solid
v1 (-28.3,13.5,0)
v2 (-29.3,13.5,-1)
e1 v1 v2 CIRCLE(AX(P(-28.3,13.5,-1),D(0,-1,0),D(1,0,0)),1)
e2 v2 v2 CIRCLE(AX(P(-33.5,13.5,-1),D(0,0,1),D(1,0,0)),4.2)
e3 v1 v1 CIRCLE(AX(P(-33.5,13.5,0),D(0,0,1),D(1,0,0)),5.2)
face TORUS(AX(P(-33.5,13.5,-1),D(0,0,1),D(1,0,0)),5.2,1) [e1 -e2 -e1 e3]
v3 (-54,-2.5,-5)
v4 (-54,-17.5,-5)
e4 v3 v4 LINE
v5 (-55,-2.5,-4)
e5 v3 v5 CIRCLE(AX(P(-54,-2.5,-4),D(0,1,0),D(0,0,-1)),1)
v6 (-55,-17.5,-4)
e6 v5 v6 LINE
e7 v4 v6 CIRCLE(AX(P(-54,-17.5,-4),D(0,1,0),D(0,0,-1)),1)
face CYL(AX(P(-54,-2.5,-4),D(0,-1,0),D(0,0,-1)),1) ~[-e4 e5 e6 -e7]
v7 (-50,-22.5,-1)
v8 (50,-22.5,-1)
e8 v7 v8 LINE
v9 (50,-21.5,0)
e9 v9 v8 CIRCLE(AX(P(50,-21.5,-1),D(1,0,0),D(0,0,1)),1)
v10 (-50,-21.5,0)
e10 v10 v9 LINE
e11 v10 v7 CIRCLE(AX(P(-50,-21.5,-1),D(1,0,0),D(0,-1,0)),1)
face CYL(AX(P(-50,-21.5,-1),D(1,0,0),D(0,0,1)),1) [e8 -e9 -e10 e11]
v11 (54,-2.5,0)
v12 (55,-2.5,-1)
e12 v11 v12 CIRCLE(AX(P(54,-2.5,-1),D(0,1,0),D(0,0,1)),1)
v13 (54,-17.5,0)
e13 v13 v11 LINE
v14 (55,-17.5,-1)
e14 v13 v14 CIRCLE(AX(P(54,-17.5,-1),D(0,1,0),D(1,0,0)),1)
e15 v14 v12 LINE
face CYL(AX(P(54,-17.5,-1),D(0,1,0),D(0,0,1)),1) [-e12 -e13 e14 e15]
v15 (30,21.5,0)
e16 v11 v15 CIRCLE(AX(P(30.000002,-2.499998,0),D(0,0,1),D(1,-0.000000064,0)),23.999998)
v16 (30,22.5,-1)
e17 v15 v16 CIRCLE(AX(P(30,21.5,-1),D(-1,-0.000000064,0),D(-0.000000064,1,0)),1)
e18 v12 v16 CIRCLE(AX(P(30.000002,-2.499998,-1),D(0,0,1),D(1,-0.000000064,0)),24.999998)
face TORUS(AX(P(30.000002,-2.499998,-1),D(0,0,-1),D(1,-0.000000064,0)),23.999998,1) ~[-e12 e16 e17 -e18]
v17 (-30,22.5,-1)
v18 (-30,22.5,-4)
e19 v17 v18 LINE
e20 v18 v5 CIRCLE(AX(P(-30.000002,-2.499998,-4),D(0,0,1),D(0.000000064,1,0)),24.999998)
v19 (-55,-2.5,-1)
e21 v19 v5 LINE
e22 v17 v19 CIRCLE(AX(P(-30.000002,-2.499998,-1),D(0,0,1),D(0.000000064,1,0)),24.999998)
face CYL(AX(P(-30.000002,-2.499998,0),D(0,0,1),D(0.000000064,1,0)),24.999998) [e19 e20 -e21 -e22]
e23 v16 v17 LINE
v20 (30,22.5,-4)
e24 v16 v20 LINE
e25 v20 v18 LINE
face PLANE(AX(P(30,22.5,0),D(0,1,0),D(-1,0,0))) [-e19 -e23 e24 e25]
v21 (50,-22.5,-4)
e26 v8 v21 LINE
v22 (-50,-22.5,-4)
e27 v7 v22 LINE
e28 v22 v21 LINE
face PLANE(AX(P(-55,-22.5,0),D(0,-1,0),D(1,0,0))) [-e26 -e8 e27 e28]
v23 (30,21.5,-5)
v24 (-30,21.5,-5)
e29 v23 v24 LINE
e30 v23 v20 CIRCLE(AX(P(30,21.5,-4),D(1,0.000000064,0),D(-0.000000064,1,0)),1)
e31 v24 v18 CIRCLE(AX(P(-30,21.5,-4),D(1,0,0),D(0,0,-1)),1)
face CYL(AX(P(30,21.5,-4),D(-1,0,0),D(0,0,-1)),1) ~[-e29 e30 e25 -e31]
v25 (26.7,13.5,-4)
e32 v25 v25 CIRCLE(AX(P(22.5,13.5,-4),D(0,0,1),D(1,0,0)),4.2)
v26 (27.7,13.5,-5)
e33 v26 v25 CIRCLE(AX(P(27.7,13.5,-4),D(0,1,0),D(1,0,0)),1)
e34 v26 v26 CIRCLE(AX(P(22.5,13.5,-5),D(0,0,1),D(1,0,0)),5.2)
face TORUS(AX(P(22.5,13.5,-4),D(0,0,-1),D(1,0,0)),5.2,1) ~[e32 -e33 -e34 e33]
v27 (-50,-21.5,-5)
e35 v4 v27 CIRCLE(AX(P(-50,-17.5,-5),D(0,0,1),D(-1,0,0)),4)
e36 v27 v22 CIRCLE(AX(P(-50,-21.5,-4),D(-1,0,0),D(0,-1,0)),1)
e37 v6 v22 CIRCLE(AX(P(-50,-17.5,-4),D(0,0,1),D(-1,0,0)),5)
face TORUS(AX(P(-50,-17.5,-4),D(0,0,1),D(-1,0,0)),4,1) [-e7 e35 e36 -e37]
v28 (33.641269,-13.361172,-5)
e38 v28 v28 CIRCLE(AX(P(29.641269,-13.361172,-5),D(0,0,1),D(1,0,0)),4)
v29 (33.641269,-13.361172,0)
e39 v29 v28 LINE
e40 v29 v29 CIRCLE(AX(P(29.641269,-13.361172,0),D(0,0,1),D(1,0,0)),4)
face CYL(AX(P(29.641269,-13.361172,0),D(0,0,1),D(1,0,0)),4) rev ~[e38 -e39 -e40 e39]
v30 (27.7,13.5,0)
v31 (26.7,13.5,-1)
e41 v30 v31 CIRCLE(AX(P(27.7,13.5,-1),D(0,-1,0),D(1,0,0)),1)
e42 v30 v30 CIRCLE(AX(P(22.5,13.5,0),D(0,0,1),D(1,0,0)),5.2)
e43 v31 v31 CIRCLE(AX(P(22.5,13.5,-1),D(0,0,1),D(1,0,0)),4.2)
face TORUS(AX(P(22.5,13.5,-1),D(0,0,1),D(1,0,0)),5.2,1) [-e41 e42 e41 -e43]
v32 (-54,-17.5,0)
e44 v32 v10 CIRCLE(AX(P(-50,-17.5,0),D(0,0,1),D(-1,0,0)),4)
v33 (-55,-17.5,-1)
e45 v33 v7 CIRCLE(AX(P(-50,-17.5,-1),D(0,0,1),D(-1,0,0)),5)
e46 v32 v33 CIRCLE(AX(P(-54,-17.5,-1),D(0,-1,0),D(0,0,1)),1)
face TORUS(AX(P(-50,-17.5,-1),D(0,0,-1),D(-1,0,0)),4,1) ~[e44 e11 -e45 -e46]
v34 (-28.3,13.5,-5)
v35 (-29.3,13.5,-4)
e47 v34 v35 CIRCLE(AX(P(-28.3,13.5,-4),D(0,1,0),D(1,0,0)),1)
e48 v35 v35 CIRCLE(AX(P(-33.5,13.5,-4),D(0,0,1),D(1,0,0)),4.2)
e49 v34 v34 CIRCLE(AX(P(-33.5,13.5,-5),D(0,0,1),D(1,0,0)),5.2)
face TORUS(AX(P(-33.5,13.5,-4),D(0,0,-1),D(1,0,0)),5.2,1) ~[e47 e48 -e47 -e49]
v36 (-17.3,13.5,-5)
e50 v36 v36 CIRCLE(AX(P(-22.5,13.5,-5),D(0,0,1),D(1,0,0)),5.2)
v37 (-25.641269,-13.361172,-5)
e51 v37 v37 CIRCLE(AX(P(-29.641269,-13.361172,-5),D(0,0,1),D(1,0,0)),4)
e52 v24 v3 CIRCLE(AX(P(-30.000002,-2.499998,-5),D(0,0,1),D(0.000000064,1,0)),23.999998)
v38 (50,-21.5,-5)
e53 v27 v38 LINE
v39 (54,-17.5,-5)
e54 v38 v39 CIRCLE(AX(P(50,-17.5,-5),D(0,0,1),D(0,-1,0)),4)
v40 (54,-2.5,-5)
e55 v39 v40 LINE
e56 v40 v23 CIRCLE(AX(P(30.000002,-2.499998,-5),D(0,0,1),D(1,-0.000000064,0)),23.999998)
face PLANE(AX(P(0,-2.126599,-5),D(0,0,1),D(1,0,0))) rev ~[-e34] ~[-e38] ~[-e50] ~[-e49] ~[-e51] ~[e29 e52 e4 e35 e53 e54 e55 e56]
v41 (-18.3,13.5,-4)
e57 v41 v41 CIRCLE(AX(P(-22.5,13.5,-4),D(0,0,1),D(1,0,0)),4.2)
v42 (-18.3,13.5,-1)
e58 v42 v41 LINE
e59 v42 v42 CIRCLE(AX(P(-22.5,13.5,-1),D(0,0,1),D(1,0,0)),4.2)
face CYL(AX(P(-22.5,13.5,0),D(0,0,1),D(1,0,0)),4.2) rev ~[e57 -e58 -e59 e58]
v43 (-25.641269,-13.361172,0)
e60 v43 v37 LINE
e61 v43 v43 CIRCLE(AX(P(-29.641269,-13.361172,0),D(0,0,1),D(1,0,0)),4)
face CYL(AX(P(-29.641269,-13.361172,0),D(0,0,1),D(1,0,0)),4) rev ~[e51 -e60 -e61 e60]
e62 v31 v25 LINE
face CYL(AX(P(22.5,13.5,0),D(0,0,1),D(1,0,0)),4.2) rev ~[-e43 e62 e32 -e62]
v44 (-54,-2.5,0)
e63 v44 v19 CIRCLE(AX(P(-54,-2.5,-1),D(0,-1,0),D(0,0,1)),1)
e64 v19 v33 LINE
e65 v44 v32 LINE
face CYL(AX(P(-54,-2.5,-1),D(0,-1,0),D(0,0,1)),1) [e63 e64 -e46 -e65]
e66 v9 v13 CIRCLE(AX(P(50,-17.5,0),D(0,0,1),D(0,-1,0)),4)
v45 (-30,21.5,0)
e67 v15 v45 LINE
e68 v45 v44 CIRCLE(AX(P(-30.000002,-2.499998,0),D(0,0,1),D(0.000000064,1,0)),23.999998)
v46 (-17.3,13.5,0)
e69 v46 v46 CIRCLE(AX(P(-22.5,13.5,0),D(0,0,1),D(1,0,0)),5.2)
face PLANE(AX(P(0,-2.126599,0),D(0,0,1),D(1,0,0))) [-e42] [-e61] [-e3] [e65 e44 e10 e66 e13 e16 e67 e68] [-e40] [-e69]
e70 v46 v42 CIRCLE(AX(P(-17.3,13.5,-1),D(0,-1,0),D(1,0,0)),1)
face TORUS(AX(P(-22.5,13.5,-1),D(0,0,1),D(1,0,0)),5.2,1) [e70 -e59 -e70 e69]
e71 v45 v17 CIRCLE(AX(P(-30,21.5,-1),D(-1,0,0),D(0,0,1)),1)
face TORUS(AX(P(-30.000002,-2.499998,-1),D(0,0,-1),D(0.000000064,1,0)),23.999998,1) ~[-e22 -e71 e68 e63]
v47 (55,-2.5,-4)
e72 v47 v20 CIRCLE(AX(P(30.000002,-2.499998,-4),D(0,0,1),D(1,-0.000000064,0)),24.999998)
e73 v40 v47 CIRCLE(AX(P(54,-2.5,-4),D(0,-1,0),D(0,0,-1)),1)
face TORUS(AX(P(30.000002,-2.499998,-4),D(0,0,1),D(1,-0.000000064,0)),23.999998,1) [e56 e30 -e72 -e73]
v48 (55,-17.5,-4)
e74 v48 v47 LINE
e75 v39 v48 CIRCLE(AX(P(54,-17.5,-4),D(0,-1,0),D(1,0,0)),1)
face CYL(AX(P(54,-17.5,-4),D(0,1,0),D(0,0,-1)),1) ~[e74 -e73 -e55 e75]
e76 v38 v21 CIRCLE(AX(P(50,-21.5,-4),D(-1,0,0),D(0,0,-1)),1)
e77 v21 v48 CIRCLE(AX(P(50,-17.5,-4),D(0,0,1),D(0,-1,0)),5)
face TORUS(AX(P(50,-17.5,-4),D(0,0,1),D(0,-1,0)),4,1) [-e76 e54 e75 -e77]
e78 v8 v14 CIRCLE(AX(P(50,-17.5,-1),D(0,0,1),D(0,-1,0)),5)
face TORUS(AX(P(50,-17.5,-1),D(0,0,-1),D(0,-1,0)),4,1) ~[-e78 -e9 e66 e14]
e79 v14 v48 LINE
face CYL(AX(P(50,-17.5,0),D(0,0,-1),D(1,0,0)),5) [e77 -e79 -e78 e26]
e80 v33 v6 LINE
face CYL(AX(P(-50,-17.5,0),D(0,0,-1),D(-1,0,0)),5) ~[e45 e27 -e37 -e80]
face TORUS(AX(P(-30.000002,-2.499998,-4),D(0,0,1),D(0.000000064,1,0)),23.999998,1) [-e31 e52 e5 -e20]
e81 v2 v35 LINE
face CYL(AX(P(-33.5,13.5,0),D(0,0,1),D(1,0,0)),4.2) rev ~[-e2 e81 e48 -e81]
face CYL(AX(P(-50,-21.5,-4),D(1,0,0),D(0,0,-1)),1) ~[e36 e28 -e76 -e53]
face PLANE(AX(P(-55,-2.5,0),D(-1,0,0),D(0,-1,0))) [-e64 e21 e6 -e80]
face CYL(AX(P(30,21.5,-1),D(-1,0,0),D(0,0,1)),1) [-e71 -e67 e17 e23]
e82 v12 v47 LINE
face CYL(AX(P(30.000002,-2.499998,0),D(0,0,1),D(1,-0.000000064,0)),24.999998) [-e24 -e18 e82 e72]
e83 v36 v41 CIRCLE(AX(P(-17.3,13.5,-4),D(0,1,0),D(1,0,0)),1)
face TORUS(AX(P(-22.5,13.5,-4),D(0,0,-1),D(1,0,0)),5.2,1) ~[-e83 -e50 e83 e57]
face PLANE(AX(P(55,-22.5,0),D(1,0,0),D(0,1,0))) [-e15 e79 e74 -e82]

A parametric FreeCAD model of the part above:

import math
import FreeCAD as App
import Part
import Sketcher


def edges_at(feature, points):
    """Names of the edges that pass closest to the given points."""
    edges = feature.Shape.Edges
    near = lambda p: min(range(len(edges)), key=lambda i: edges[i].distToShape(Part.Vertex(*p))[0])
    return sorted({f"Edge{near(p) + 1}" for p in points})

doc = App.newDocument("Part")
body = doc.addObject("PartDesign::Body", "Body")

sketch1 = body.newObject("Sketcher::SketchObject", "Sketch")
sketch1.AttachmentSupport = (doc.getObject("XY_Plane"), [""])
sketch1.MapMode = "FlatFace"
sketch1.addGeometry(Part.LineSegment(App.Vector(30, 22.5, 0), App.Vector(-30, 22.5, 0)), False)
sketch1.addGeometry(Part.ArcOfCircle(Part.Circle(App.Vector(-30, -2.5, 0), App.Vector(0, 0, 1), 25), math.radians(90), math.radians(180)), False)
sketch1.addGeometry(Part.LineSegment(App.Vector(-55, -2.5, 0), App.Vector(-55, -22.5, 0)), False)
sketch1.addGeometry(Part.LineSegment(App.Vector(-55, -22.5, 0), App.Vector(55, -22.5, 0)), False)
sketch1.addGeometry(Part.LineSegment(App.Vector(55, -22.5, 0), App.Vector(55, -2.5, 0)), False)
sketch1.addGeometry(Part.ArcOfCircle(Part.Circle(App.Vector(30, -2.5, 0), App.Vector(0, 0, 1), 25), math.radians(0), math.radians(90)), False)
sketch1.addGeometry(Part.Circle(App.Vector(-33.5, 13.5, 0), App.Vector(0, 0, 1), 4.2), False)
sketch1.addGeometry(Part.Circle(App.Vector(-22.5, 13.5, 0), App.Vector(0, 0, 1), 4.2), False)
sketch1.addGeometry(Part.Circle(App.Vector(22.5, 13.5, 0), App.Vector(0, 0, 1), 4.2), False)
sketch1.addConstraint(Sketcher.Constraint("Tangent", 0, 2, 1, 1))
sketch1.addConstraint(Sketcher.Constraint("Tangent", 1, 2, 2, 1))
sketch1.addConstraint(Sketcher.Constraint("Coincident", 2, 2, 3, 1))
sketch1.addConstraint(Sketcher.Constraint("Coincident", 3, 2, 4, 1))
sketch1.addConstraint(Sketcher.Constraint("Tangent", 4, 2, 5, 1))
sketch1.addConstraint(Sketcher.Constraint("Tangent", 5, 2, 0, 1))
sketch1.addConstraint(Sketcher.Constraint("Horizontal", 0))
sketch1.addConstraint(Sketcher.Constraint("Vertical", 2))
sketch1.addConstraint(Sketcher.Constraint("Horizontal", 3))
sketch1.addConstraint(Sketcher.Constraint("Vertical", 4))
sketch1.addConstraint(Sketcher.Constraint("Equal", 1, 5))
sketch1.addConstraint(Sketcher.Constraint("Equal", 6, 7))
sketch1.addConstraint(Sketcher.Constraint("Equal", 7, 8))
sketch1.addConstraint(Sketcher.Constraint("Symmetric", 7, 3, 8, 3, -2))
sketch1.addConstraint(Sketcher.Constraint("Horizontal", 6, 3, 7, 3))
sketch1.addConstraint(Sketcher.Constraint("Radius", 1, 24.999998))
sketch1.addConstraint(Sketcher.Constraint("Diameter", 6, 8.4))
sketch1.addConstraint(Sketcher.Constraint("DistanceX", 0, 2, 0, 1, 60.0))
sketch1.addConstraint(Sketcher.Constraint("DistanceY", 2, 2, 2, 1, 20.0))
sketch1.addConstraint(Sketcher.Constraint("DistanceX", 1, 3, -1, 1, 30.000002))
sketch1.addConstraint(Sketcher.Constraint("DistanceY", 1, 3, 6, 3, 15.999998))
sketch1.addConstraint(Sketcher.Constraint("DistanceX", 6, 3, 7, 3, 11.0))
sketch1.addConstraint(Sketcher.Constraint("DistanceX", 7, 3, 8, 3, 45.0))
sketch1.addConstraint(Sketcher.Constraint("DistanceY", 1, 3, -1, 1, 2.499998))
pad1 = body.newObject("PartDesign::Pad", "Pad")
pad1.Profile = sketch1
pad1.Length = 5
pad1.Reversed = True
doc.recompute()

fillet = body.newObject("PartDesign::Fillet", "Fillet")
fillet.Base = (pad1, edges_at(pad1, [(55, -22.5, -2.5), (-55, -22.5, -2.5)]))
fillet.Radius = 5
doc.recompute()

fillet2 = body.newObject("PartDesign::Fillet", "Fillet001")
fillet2.Base = (fillet, edges_at(fillet, [
    (-55, -10, 0),
    (-53.536, -21.036, 0),
    (-47.678, 15.178, 0),
    (0, -22.5, 0),
    (0, 22.5, 0),
    (53.536, -21.036, 0),
    (47.678, 15.178, 0),
    (55, -10, 0),
    (-37.7, 13.5, 0),
    (-26.7, 13.5, 0),
    (18.3, 13.5, 0),
    (-55, -10, -5),
    (-53.536, -21.036, -5),
    (-47.678, 15.178, -5),
    (0, -22.5, -5),
    (0, 22.5, -5),
    (53.536, -21.036, -5),
    (47.678, 15.178, -5),
    (55, -10, -5),
    (-37.7, 13.5, -5),
    (-26.7, 13.5, -5),
    (18.3, 13.5, -5),
]))
fillet2.Radius = 1

sketch2 = body.newObject("Sketcher::SketchObject", "Sketch001")
sketch2.AttachmentSupport = (doc.getObject("XY_Plane"), [""])
sketch2.MapMode = "FlatFace"
sketch2.addGeometry(Part.Circle(App.Vector(29.6, -13.4, 0), App.Vector(0, 0, 1), 4), False)
sketch2.addGeometry(Part.Circle(App.Vector(-29.6, -13.4, 0), App.Vector(0, 0, 1), 4), False)
sketch2.addConstraint(Sketcher.Constraint("Equal", 0, 1))
sketch2.addConstraint(Sketcher.Constraint("Symmetric", 0, 3, 1, 3, -2))
sketch2.addConstraint(Sketcher.Constraint("Diameter", 0, 8.0))
sketch2.addConstraint(Sketcher.Constraint("DistanceX", -1, 1, 0, 3, 29.641269))
sketch2.addConstraint(Sketcher.Constraint("DistanceY", 0, 3, -1, 1, 13.361172))
pocket1 = body.newObject("PartDesign::Pocket", "Pocket")
pocket1.Profile = sketch2
pocket1.Type = "ThroughAll"

doc.recompute()
